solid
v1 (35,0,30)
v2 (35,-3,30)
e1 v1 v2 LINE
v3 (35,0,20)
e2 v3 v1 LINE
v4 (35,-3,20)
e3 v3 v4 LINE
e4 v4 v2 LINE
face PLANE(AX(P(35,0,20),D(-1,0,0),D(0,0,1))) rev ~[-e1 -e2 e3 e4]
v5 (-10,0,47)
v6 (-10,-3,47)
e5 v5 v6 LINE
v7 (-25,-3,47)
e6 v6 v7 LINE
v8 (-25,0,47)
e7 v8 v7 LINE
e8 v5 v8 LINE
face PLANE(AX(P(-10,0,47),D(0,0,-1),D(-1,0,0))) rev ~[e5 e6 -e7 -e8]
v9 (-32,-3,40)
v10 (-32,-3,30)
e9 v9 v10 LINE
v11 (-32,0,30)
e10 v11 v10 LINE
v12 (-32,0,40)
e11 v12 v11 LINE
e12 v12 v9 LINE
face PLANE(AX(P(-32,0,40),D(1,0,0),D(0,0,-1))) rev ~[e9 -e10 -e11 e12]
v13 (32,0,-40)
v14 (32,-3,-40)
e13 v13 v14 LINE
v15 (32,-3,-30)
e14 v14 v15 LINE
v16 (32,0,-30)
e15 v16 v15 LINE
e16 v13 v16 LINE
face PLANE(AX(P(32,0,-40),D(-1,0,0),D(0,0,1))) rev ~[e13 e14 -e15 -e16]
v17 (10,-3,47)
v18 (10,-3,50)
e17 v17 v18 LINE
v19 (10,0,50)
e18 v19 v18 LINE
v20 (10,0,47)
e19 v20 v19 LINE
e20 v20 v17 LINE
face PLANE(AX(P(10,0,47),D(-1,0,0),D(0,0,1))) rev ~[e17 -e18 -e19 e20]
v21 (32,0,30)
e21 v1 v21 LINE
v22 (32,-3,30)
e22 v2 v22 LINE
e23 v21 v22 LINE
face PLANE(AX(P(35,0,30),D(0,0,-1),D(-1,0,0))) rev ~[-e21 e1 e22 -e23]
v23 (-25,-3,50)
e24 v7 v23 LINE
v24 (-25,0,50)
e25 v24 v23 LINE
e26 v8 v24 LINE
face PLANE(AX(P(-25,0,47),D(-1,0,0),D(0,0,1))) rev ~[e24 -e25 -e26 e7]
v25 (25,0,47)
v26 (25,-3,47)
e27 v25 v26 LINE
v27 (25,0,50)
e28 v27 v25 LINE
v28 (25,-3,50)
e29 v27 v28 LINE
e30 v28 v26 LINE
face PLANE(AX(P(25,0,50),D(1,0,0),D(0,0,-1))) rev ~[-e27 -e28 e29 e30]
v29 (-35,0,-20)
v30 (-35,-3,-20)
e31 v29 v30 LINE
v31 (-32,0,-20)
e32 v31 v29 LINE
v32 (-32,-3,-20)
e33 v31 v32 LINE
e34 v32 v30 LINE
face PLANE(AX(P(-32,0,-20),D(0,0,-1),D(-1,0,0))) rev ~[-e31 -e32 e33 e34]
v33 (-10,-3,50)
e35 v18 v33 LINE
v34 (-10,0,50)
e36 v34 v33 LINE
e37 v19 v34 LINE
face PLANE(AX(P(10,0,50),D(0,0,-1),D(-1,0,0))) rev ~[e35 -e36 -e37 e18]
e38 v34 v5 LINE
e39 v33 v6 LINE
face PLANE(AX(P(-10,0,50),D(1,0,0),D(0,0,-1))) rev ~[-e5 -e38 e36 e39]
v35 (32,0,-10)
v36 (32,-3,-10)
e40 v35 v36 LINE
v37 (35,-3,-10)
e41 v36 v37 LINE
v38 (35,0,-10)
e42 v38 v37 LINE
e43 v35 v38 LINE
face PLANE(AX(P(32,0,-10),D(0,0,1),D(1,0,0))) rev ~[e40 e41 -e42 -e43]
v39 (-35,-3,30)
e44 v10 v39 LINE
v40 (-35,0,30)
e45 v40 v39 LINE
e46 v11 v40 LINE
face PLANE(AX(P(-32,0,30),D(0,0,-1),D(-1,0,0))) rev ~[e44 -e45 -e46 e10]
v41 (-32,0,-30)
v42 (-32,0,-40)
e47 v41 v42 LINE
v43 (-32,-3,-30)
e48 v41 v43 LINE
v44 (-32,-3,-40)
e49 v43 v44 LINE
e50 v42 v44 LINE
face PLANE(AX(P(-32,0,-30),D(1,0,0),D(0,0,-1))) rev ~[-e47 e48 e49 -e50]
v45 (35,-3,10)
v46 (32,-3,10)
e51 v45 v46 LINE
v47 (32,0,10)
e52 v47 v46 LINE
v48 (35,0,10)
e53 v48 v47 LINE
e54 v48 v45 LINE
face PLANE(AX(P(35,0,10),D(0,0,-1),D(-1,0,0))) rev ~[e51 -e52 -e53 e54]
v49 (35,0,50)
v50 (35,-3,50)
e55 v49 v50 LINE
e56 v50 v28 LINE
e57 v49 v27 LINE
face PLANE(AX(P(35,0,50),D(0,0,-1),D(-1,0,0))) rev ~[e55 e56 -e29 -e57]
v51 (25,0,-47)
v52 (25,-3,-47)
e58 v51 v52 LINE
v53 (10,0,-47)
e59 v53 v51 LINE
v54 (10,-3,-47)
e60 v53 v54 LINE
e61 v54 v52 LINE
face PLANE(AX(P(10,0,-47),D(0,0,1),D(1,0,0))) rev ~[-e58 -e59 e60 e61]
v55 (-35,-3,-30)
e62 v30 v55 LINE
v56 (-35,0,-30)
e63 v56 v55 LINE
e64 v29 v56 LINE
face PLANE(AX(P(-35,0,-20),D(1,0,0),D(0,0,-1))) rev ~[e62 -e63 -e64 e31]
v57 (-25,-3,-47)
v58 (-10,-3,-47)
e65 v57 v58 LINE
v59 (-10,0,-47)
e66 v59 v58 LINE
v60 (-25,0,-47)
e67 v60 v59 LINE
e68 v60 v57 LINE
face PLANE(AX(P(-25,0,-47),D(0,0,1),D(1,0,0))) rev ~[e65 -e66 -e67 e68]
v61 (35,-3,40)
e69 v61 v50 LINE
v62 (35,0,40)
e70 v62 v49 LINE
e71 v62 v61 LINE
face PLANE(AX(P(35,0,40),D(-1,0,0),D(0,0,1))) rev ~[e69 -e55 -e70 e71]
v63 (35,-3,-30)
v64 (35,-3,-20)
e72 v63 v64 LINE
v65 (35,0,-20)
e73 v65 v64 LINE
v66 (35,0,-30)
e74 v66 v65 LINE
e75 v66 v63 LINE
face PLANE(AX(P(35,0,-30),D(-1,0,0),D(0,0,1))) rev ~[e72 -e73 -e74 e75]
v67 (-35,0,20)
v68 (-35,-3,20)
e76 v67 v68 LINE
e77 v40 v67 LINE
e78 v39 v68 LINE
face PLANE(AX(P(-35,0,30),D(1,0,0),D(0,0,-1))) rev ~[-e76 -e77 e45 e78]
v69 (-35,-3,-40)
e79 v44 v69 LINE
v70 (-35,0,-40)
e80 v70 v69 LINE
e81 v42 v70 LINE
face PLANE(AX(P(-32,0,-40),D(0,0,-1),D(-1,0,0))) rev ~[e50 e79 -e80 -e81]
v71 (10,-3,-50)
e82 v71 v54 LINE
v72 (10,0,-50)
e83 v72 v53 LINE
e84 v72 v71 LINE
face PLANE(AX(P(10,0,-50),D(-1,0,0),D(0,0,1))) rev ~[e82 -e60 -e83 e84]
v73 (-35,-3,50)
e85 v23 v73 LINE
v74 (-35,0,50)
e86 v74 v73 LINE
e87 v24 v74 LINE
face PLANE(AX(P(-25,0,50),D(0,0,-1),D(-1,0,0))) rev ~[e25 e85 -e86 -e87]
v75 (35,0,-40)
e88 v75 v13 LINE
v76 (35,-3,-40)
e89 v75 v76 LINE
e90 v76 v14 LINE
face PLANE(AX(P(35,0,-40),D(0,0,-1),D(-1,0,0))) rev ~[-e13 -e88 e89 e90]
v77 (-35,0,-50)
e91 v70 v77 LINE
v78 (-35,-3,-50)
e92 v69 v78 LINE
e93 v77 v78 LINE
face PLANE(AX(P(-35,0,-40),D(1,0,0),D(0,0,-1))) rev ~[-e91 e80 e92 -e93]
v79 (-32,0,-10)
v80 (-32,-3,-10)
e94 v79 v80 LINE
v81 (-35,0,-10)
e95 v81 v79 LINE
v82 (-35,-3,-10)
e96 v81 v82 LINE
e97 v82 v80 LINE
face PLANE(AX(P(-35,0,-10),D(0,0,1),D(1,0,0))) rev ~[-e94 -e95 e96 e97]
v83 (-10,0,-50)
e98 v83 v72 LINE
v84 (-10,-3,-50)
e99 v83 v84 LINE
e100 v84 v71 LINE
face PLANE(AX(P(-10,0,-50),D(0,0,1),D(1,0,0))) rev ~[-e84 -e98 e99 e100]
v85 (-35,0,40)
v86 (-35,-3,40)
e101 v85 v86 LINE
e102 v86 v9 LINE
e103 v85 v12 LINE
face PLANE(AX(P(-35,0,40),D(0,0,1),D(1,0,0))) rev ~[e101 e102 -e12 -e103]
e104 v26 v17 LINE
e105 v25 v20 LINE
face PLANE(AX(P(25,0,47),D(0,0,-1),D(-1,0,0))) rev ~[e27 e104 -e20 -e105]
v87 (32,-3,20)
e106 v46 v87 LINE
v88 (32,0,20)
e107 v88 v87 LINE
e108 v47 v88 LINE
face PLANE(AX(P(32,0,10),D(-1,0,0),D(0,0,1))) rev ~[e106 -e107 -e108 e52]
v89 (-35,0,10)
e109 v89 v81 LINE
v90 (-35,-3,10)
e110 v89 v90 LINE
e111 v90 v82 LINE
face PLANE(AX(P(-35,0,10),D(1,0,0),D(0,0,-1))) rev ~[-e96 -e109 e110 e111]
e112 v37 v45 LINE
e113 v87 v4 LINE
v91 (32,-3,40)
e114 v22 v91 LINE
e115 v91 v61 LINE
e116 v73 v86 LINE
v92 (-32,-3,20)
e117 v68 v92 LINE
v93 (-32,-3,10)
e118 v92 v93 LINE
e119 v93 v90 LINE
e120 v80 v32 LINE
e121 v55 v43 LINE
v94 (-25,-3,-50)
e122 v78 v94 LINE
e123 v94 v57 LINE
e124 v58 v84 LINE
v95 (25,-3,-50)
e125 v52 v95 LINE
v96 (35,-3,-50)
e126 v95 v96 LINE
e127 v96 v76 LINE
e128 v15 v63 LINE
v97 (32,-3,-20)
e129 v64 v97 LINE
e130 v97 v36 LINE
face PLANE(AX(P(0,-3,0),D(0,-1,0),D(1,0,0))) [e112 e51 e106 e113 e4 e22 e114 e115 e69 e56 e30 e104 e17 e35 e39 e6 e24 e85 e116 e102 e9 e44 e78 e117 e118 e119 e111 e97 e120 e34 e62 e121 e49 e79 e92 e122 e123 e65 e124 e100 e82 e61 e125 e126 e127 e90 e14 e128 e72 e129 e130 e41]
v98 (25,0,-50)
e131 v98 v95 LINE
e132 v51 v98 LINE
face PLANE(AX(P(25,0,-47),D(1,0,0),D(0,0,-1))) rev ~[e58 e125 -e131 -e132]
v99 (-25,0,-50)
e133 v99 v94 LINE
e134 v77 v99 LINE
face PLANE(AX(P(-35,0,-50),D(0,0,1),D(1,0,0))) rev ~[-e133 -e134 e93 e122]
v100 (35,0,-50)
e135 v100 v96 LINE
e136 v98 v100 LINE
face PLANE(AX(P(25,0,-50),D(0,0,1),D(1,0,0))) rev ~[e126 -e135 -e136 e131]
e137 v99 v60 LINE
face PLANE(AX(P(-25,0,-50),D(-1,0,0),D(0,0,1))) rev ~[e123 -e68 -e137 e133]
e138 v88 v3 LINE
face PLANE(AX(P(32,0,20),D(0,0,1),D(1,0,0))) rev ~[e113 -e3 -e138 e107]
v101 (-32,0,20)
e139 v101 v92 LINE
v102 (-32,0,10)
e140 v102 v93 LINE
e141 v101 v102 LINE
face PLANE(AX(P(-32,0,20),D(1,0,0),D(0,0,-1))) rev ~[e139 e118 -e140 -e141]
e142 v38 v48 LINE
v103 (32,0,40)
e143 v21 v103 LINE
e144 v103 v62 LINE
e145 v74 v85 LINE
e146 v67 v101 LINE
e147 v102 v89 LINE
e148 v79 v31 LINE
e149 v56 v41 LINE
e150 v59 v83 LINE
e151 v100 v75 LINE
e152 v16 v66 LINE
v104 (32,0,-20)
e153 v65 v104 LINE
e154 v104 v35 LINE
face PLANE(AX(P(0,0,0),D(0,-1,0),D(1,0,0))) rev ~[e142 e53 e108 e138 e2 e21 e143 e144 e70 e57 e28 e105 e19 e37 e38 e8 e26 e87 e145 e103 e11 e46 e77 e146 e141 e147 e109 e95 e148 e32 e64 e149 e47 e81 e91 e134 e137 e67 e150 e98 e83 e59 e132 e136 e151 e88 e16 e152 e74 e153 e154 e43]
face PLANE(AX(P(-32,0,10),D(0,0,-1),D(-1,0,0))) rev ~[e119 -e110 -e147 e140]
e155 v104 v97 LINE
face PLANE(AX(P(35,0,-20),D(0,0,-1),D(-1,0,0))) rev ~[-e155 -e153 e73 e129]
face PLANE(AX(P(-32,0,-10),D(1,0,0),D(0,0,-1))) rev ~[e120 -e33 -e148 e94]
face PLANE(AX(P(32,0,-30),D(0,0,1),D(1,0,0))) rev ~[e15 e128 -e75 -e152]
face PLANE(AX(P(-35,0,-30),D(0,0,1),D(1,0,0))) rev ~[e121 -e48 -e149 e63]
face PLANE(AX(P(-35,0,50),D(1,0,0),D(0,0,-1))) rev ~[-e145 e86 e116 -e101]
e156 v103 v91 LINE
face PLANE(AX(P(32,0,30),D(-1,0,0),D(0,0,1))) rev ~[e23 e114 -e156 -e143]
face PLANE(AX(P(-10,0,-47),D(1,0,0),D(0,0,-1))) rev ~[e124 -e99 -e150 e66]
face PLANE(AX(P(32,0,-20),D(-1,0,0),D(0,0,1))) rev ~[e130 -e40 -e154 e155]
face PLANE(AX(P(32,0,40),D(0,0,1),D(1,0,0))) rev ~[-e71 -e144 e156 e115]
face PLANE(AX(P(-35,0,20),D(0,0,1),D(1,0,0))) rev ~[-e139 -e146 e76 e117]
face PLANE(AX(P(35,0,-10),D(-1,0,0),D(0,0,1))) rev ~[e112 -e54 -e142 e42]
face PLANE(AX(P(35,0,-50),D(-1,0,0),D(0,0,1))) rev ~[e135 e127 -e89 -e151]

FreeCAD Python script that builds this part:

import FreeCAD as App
import Part
import Sketcher

V = App.Vector
Q = App.Units.Quantity

doc = App.newDocument("Part")
body = doc.addObject("PartDesign::Body", "Body")

# Sketch on XZ plane
sketch1 = doc.addObject("Sketcher::SketchObject", "Sketch")
body.addObject(sketch1)
sketch1.AttachmentSupport = (doc.XZ_Plane, [""])
sketch1.MapMode = "FlatFace"
sketch1.addGeometry([
    Part.LineSegment(V(35, 40, 0), V(35, 50, 0)),  # 0
    Part.LineSegment(V(35, 50, 0), V(25, 50, 0)),  # 1
    Part.LineSegment(V(25, 50, 0), V(25, 47, 0)),  # 2
    Part.LineSegment(V(25, 47, 0), V(10, 47, 0)),  # 3
    Part.LineSegment(V(10, 47, 0), V(10, 50, 0)),  # 4
    Part.LineSegment(V(10, 50, 0), V(-10, 50, 0)),  # 5
    Part.LineSegment(V(-10, 50, 0), V(-10, 47, 0)),  # 6
    Part.LineSegment(V(-10, 47, 0), V(-25, 47, 0)),  # 7
    Part.LineSegment(V(-25, 47, 0), V(-25, 50, 0)),  # 8
    Part.LineSegment(V(-25, 50, 0), V(-35, 50, 0)),  # 9
    Part.LineSegment(V(-35, 50, 0), V(-35, 40, 0)),  # 10
    Part.LineSegment(V(-35, 40, 0), V(-32, 40, 0)),  # 11
    Part.LineSegment(V(-32, 40, 0), V(-32, 30, 0)),  # 12
    Part.LineSegment(V(-32, 30, 0), V(-35, 30, 0)),  # 13
    Part.LineSegment(V(-35, 30, 0), V(-35, 20, 0)),  # 14
    Part.LineSegment(V(-35, 20, 0), V(-32, 20, 0)),  # 15
    Part.LineSegment(V(-32, 20, 0), V(-32, 10, 0)),  # 16
    Part.LineSegment(V(-32, 10, 0), V(-35, 10, 0)),  # 17
    Part.LineSegment(V(-35, 10, 0), V(-35, -10, 0)),  # 18
    Part.LineSegment(V(-35, -10, 0), V(-32, -10, 0)),  # 19
    Part.LineSegment(V(-32, -10, 0), V(-32, -20, 0)),  # 20
    Part.LineSegment(V(-32, -20, 0), V(-35, -20, 0)),  # 21
    Part.LineSegment(V(-35, -20, 0), V(-35, -30, 0)),  # 22
    Part.LineSegment(V(-35, -30, 0), V(-32, -30, 0)),  # 23
    Part.LineSegment(V(-32, -30, 0), V(-32, -40, 0)),  # 24
    Part.LineSegment(V(-32, -40, 0), V(-35, -40, 0)),  # 25
    Part.LineSegment(V(-35, -40, 0), V(-35, -50, 0)),  # 26
    Part.LineSegment(V(-35, -50, 0), V(-25, -50, 0)),  # 27
    Part.LineSegment(V(-25, -50, 0), V(-25, -47, 0)),  # 28
    Part.LineSegment(V(-25, -47, 0), V(-10, -47, 0)),  # 29
    Part.LineSegment(V(-10, -47, 0), V(-10, -50, 0)),  # 30
    Part.LineSegment(V(-10, -50, 0), V(10, -50, 0)),  # 31
    Part.LineSegment(V(10, -50, 0), V(10, -47, 0)),  # 32
    Part.LineSegment(V(10, -47, 0), V(25, -47, 0)),  # 33
    Part.LineSegment(V(25, -47, 0), V(25, -50, 0)),  # 34
    Part.LineSegment(V(25, -50, 0), V(35, -50, 0)),  # 35
    Part.LineSegment(V(35, -50, 0), V(35, -40, 0)),  # 36
    Part.LineSegment(V(35, -40, 0), V(32, -40, 0)),  # 37
    Part.LineSegment(V(32, -40, 0), V(32, -30, 0)),  # 38
    Part.LineSegment(V(32, -30, 0), V(35, -30, 0)),  # 39
    Part.LineSegment(V(35, -30, 0), V(35, -20, 0)),  # 40
    Part.LineSegment(V(35, -20, 0), V(32, -20, 0)),  # 41
    Part.LineSegment(V(32, -20, 0), V(32, -10, 0)),  # 42
    Part.LineSegment(V(32, -10, 0), V(35, -10, 0)),  # 43
    Part.LineSegment(V(35, -10, 0), V(35, 10, 0)),  # 44
    Part.LineSegment(V(35, 10, 0), V(32, 10, 0)),  # 45
    Part.LineSegment(V(32, 10, 0), V(32, 20, 0)),  # 46
    Part.LineSegment(V(32, 20, 0), V(35, 20, 0)),  # 47
    Part.LineSegment(V(35, 20, 0), V(35, 30, 0)),  # 48
    Part.LineSegment(V(35, 30, 0), V(32, 30, 0)),  # 49
    Part.LineSegment(V(32, 30, 0), V(32, 40, 0)),  # 50
    Part.LineSegment(V(32, 40, 0), V(35, 40, 0)),  # 51
], False)
sketch1.addConstraint([
    Sketcher.Constraint("Coincident", 0, 2, 1, 1),
    Sketcher.Constraint("Coincident", 1, 2, 2, 1),
    Sketcher.Constraint("Coincident", 2, 2, 3, 1),
    Sketcher.Constraint("Coincident", 3, 2, 4, 1),
    Sketcher.Constraint("Coincident", 4, 2, 5, 1),
    Sketcher.Constraint("Coincident", 5, 2, 6, 1),
    Sketcher.Constraint("Coincident", 6, 2, 7, 1),
    Sketcher.Constraint("Coincident", 7, 2, 8, 1),
    Sketcher.Constraint("Coincident", 8, 2, 9, 1),
    Sketcher.Constraint("Coincident", 9, 2, 10, 1),
    Sketcher.Constraint("Coincident", 10, 2, 11, 1),
    Sketcher.Constraint("Coincident", 11, 2, 12, 1),
    Sketcher.Constraint("Coincident", 12, 2, 13, 1),
    Sketcher.Constraint("Coincident", 13, 2, 14, 1),
    Sketcher.Constraint("Coincident", 14, 2, 15, 1),
    Sketcher.Constraint("Coincident", 15, 2, 16, 1),
    Sketcher.Constraint("Coincident", 16, 2, 17, 1),
    Sketcher.Constraint("Coincident", 17, 2, 18, 1),
    Sketcher.Constraint("Coincident", 18, 2, 19, 1),
    Sketcher.Constraint("Coincident", 19, 2, 20, 1),
    Sketcher.Constraint("Coincident", 20, 2, 21, 1),
    Sketcher.Constraint("Coincident", 21, 2, 22, 1),
    Sketcher.Constraint("Coincident", 22, 2, 23, 1),
    Sketcher.Constraint("Coincident", 23, 2, 24, 1),
    Sketcher.Constraint("Coincident", 24, 2, 25, 1),
    Sketcher.Constraint("Coincident", 25, 2, 26, 1),
    Sketcher.Constraint("Coincident", 26, 2, 27, 1),
    Sketcher.Constraint("Coincident", 27, 2, 28, 1),
    Sketcher.Constraint("Coincident", 28, 2, 29, 1),
    Sketcher.Constraint("Coincident", 29, 2, 30, 1),
    Sketcher.Constraint("Coincident", 30, 2, 31, 1),
    Sketcher.Constraint("Coincident", 31, 2, 32, 1),
    Sketcher.Constraint("Coincident", 32, 2, 33, 1),
    Sketcher.Constraint("Coincident", 33, 2, 34, 1),
    Sketcher.Constraint("Coincident", 34, 2, 35, 1),
    Sketcher.Constraint("Coincident", 35, 2, 36, 1),
    Sketcher.Constraint("Coincident", 36, 2, 37, 1),
    Sketcher.Constraint("Coincident", 37, 2, 38, 1),
    Sketcher.Constraint("Coincident", 38, 2, 39, 1),
    Sketcher.Constraint("Coincident", 39, 2, 40, 1),
    Sketcher.Constraint("Coincident", 40, 2, 41, 1),
    Sketcher.Constraint("Coincident", 41, 2, 42, 1),
    Sketcher.Constraint("Coincident", 42, 2, 43, 1),
    Sketcher.Constraint("Coincident", 43, 2, 44, 1),
    Sketcher.Constraint("Coincident", 44, 2, 45, 1),
    Sketcher.Constraint("Coincident", 45, 2, 46, 1),
    Sketcher.Constraint("Coincident", 46, 2, 47, 1),
    Sketcher.Constraint("Coincident", 47, 2, 48, 1),
    Sketcher.Constraint("Coincident", 48, 2, 49, 1),
    Sketcher.Constraint("Coincident", 49, 2, 50, 1),
    Sketcher.Constraint("Coincident", 50, 2, 51, 1),
    Sketcher.Constraint("Coincident", 51, 2, 0, 1),
    Sketcher.Constraint("Vertical", 0),
    Sketcher.Constraint("Horizontal", 1),
    Sketcher.Constraint("Vertical", 2),
    Sketcher.Constraint("Horizontal", 3),
    Sketcher.Constraint("Vertical", 4),
    Sketcher.Constraint("Horizontal", 5),
    Sketcher.Constraint("Vertical", 6),
    Sketcher.Constraint("Horizontal", 7),
    Sketcher.Constraint("Vertical", 8),
    Sketcher.Constraint("Horizontal", 9),
    Sketcher.Constraint("Vertical", 10),
    Sketcher.Constraint("Horizontal", 11),
    Sketcher.Constraint("Vertical", 12),
    Sketcher.Constraint("Horizontal", 13),
    Sketcher.Constraint("Vertical", 14),
    Sketcher.Constraint("Horizontal", 15),
    Sketcher.Constraint("Vertical", 16),
    Sketcher.Constraint("Horizontal", 17),
    Sketcher.Constraint("Vertical", 18),
    Sketcher.Constraint("Horizontal", 19),
    Sketcher.Constraint("Vertical", 20),
    Sketcher.Constraint("Horizontal", 21),
    Sketcher.Constraint("Vertical", 22),
    Sketcher.Constraint("Horizontal", 23),
    Sketcher.Constraint("Vertical", 24),
    Sketcher.Constraint("Horizontal", 25),
    Sketcher.Constraint("Vertical", 26),
    Sketcher.Constraint("Horizontal", 27),
    Sketcher.Constraint("Vertical", 28),
    Sketcher.Constraint("Horizontal", 29),
    Sketcher.Constraint("Vertical", 30),
    Sketcher.Constraint("Horizontal", 31),
    Sketcher.Constraint("Vertical", 32),
    Sketcher.Constraint("Horizontal", 33),
    Sketcher.Constraint("Vertical", 34),
    Sketcher.Constraint("Horizontal", 35),
    Sketcher.Constraint("Vertical", 36),
    Sketcher.Constraint("Horizontal", 37),
    Sketcher.Constraint("Vertical", 38),
    Sketcher.Constraint("Horizontal", 39),
    Sketcher.Constraint("Vertical", 40),
    Sketcher.Constraint("Horizontal", 41),
    Sketcher.Constraint("Vertical", 42),
    Sketcher.Constraint("Horizontal", 43),
    Sketcher.Constraint("Vertical", 44),
    Sketcher.Constraint("Horizontal", 45),
    Sketcher.Constraint("Vertical", 46),
    Sketcher.Constraint("Horizontal", 47),
    Sketcher.Constraint("Vertical", 48),
    Sketcher.Constraint("Horizontal", 49),
    Sketcher.Constraint("Vertical", 50),
    Sketcher.Constraint("Horizontal", 51),
    Sketcher.Constraint("Symmetric", 0, 2, 26, 2, -1, 1),
    Sketcher.Constraint("Symmetric", 2, 2, 28, 2, -1, 1),
    Sketcher.Constraint("Symmetric", 4, 2, 30, 2, -1, 1),
    Sketcher.Constraint("Symmetric", 6, 2, 32, 2, -1, 1),
    Sketcher.Constraint("Symmetric", 8, 2, 34, 2, -1, 1),
    Sketcher.Constraint("Symmetric", 10, 2, 36, 2, -1, 1),
    Sketcher.Constraint("Symmetric", 12, 2, 38, 2, -1, 1),
    Sketcher.Constraint("Symmetric", 14, 2, 40, 2, -1, 1),
    Sketcher.Constraint("Symmetric", 16, 2, 42, 2, -1, 1),
    Sketcher.Constraint("Symmetric", 18, 2, 44, 2, -1, 1),
    Sketcher.Constraint("Symmetric", 20, 2, 46, 2, -1, 1),
    Sketcher.Constraint("Symmetric", 22, 2, 48, 2, -1, 1),
    Sketcher.Constraint("Symmetric", 24, 2, 50, 2, -1, 1),
    Sketcher.Constraint("Symmetric", 3, 2, 6, 2, -2),
    Sketcher.Constraint("Symmetric", 1, 2, 8, 2, -2),
    Sketcher.Constraint("Symmetric", 25, 2, 36, 2, -2),
    Sketcher.Constraint("Symmetric", 23, 2, 38, 2, -2),
    Sketcher.Constraint("Symmetric", 21, 2, 40, 2, -2),
    Sketcher.Constraint("Symmetric", 19, 2, 42, 2, -2),
    Sketcher.Constraint("Horizontal", 1, 2, 4, 2),
    Sketcher.Constraint("Vertical", 10, 2, 13, 2),
    Sketcher.Constraint("Vertical", 12, 2, 15, 2),
    Sketcher.Constraint("Vertical", 14, 2, 17, 2),
    Sketcher.Constraint("Equal", 35, 0),
    Sketcher.Constraint("Equal", 51, 2),
    Sketcher.Constraint("Equal", 10, 12),
    Sketcher.Constraint("Equal", 12, 14),
    Sketcher.Constraint("Equal", 14, 16),
    Sketcher.Constraint("Equal", 31, 18),
    Sketcher.Constraint("DistanceX", 1, 2, 1, 1, Q("10 mm")),
    Sketcher.Constraint("DistanceX", 3, 2, 3, 1, Q("15 mm")),
    Sketcher.Constraint("DistanceX", 5, 2, 5, 1, Q("20 mm")),
    Sketcher.Constraint("DistanceX", 11, 1, 11, 2, Q("3 mm")),
])
pad1 = doc.addObject("PartDesign::Pad", "Pad")
body.addObject(pad1)
pad1.Profile = sketch1
pad1.Length = 3

doc.recompute()
